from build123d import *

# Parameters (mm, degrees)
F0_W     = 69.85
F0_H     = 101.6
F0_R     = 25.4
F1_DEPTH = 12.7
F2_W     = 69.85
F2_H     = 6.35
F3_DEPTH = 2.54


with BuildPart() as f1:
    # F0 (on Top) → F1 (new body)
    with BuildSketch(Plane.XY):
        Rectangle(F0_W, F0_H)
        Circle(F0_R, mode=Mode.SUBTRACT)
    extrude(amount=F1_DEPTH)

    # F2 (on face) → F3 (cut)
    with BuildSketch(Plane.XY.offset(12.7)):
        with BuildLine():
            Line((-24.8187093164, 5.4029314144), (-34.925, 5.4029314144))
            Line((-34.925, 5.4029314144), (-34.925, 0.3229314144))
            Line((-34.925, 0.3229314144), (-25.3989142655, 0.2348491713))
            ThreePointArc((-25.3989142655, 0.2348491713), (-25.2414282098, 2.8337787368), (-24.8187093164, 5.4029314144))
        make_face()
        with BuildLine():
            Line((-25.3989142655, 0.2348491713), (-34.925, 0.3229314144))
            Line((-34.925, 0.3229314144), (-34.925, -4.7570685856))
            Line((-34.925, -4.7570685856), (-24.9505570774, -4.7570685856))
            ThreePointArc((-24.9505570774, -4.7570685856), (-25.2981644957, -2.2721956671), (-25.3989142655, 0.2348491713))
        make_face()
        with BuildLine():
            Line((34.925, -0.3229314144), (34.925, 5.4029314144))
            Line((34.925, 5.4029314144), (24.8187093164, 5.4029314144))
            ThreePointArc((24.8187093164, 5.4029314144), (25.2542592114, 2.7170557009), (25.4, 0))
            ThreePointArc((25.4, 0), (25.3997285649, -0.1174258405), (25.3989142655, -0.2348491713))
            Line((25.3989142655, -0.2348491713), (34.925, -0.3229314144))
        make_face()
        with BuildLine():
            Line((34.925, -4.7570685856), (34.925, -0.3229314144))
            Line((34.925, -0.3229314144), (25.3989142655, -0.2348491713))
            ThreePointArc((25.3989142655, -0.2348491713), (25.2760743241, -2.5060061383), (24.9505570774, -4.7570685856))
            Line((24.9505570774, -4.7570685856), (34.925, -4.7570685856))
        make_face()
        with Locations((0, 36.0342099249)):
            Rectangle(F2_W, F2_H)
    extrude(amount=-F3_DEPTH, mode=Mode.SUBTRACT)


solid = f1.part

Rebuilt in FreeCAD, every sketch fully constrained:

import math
import FreeCAD as App
import Part
import Sketcher

V = App.Vector
Q = App.Units.Quantity

doc = App.newDocument("Part")
body = doc.addObject("PartDesign::Body", "Body")

sketch1 = body.newObject("Sketcher::SketchObject", "Sketch")
sketch1.AttachmentSupport = (doc.getObject("XY_Plane"), [""])
sketch1.MapMode = "FlatFace"
sketch1.addGeometry([
    Part.LineSegment(V(-35, 51, 0), V(-35, -51, 0)),
    Part.LineSegment(V(-35, -51, 0), V(35, -51, 0)),
    Part.LineSegment(V(35, -51, 0), V(35, 51, 0)),
    Part.LineSegment(V(35, 51, 0), V(-35, 51, 0)),
    Part.Circle(V(0, 0, 0), V(0, 0, 1), 25),
], False)
sketch1.addConstraint([
    Sketcher.Constraint("Coincident", 0, 2, 1, 1),
    Sketcher.Constraint("Coincident", 1, 2, 2, 1),
    Sketcher.Constraint("Coincident", 2, 2, 3, 1),
    Sketcher.Constraint("Coincident", 3, 2, 0, 1),
    Sketcher.Constraint("Vertical", 0),
    Sketcher.Constraint("Horizontal", 1),
    Sketcher.Constraint("Vertical", 2),
    Sketcher.Constraint("Horizontal", 3),
    Sketcher.Constraint("Coincident", 4, 3, -1, 1),
    Sketcher.Constraint("Symmetric", 0, 2, 2, 2, -1, 1),
    Sketcher.Constraint("Diameter", 4, Q("2 in")),
    Sketcher.Constraint("DistanceY", 0, 2, 0, 1, Q("4 in")),
    Sketcher.Constraint("DistanceX", 1, 1, 1, 2, Q("2.75 in")),
])
pad1 = body.newObject("PartDesign::Pad", "Pad")
pad1.Profile = sketch1
pad1.Length = Q("0.5 in")

sketch2 = body.newObject("Sketcher::SketchObject", "Sketch001")
sketch2.AttachmentSupport = (doc.getObject("XY_Plane"), [""])
sketch2.MapMode = "FlatFace"
sketch2.AttachmentOffset = App.Placement(V(0, 0, 0.5 * 25.4), App.Rotation())
sketch2.addGeometry([
    Part.LineSegment(V(-24.82, 5.4, 0), V(-34.92, 5.4, 0)),
    Part.LineSegment(V(-34.92, 5.4, 0), V(-34.92, -4.76, 0)),
    Part.LineSegment(V(-34.92, -4.76, 0), V(-24.95, -4.76, 0)),
    Part.ArcOfCircle(Part.Circle(V(0, 0, 0), V(0, 0, 1), 25.4), math.radians(179.47), math.radians(190.79)),
    Part.ArcOfCircle(Part.Circle(V(0, 0, 0), V(0, 0, 1), 25.4), math.radians(167.72), math.radians(179.47)),
    Part.LineSegment(V(34.92, 5.4, 0), V(24.82, 5.4, 0)),
    Part.ArcOfCircle(Part.Circle(V(0, 0, 0), V(0, 0, 1), 25.4), math.radians(0), math.radians(12.28)),
    Part.ArcOfCircle(Part.Circle(V(0, 0, 0), V(0, 0, 1), 25.4), math.radians(-0.53), math.radians(0)),
    Part.ArcOfCircle(Part.Circle(V(0, 0, 0), V(0, 0, 1), 25.4), math.radians(-10.79), math.radians(-0.53)),
    Part.LineSegment(V(24.95, -4.76, 0), V(34.92, -4.76, 0)),
    Part.LineSegment(V(34.92, -4.76, 0), V(34.92, 5.4, 0)),
    Part.LineSegment(V(-34.92, 39.21, 0), V(-34.92, 32.86, 0)),
    Part.LineSegment(V(-34.92, 32.86, 0), V(34.92, 32.86, 0)),
    Part.LineSegment(V(34.92, 32.86, 0), V(34.92, 39.21, 0)),
    Part.LineSegment(V(34.92, 39.21, 0), V(-34.92, 39.21, 0)),
], False)
sketch2.addConstraint([
    Sketcher.Constraint("Coincident", 0, 2, 1, 1),
    Sketcher.Constraint("Coincident", 1, 2, 2, 1),
    Sketcher.Constraint("Coincident", 2, 2, 3, 2),
    Sketcher.Constraint("Tangent", 3, 1, 4, 2),
    Sketcher.Constraint("Coincident", 4, 1, 0, 1),
    Sketcher.Constraint("Coincident", 5, 2, 6, 2),
    Sketcher.Constraint("Tangent", 6, 1, 7, 2),
    Sketcher.Constraint("Tangent", 7, 1, 8, 2),
    Sketcher.Constraint("Coincident", 8, 1, 9, 1),
    Sketcher.Constraint("Coincident", 9, 2, 10, 1),
    Sketcher.Constraint("Coincident", 10, 2, 5, 1),
    Sketcher.Constraint("Coincident", 11, 2, 12, 1),
    Sketcher.Constraint("Coincident", 12, 2, 13, 1),
    Sketcher.Constraint("Coincident", 13, 2, 14, 1),
    Sketcher.Constraint("Coincident", 14, 2, 11, 1),
    Sketcher.Constraint("Horizontal", 0),
    Sketcher.Constraint("Vertical", 1),
    Sketcher.Constraint("Horizontal", 2),
    Sketcher.Constraint("Horizontal", 5),
    Sketcher.Constraint("Horizontal", 9),
    Sketcher.Constraint("Vertical", 10),
    Sketcher.Constraint("Vertical", 11),
    Sketcher.Constraint("Horizontal", 12),
    Sketcher.Constraint("Vertical", 13),
    Sketcher.Constraint("Horizontal", 14),
    Sketcher.Constraint("Coincident", 3, 3, -1, 1),
    Sketcher.Constraint("Coincident", 6, 3, -1, 1),
    Sketcher.Constraint("Coincident", 8, 3, -1, 1),
    Sketcher.Constraint("Equal", 3, 4),
    Sketcher.Constraint("Equal", 4, 6),
    Sketcher.Constraint("Symmetric", 1, 2, 9, 2, -2),
    Sketcher.Constraint("PointOnObject", 6, 1, -1),
    Sketcher.Constraint("Horizontal", 4, 1, 5, 2),
    Sketcher.Constraint("Vertical", 1, 2, 11, 2),
    Sketcher.Constraint("Vertical", 10, 2, 12, 2),
    Sketcher.Constraint("Radius", 3, Q("1 in")),
    Sketcher.Constraint("DistanceY", 1, 2, 1, 1, Q("0.4 in")),
    Sketcher.Constraint("DistanceX", 12, 1, 12, 2, Q("2.75 in")),
    Sketcher.Constraint("DistanceY", 11, 2, 11, 1, Q("0.25 in")),
    Sketcher.Constraint("DistanceX", 0, 2, 0, 1, 10.106291),
    Sketcher.Constraint("DistanceY", -1, 1, 3, 1, 0.234849),
    Sketcher.Constraint("DistanceY", 7, 1, -1, 1, 0.234849),
    Sketcher.Constraint("DistanceY", -1, 1, 11, 2, 32.85921),
])
pocket1 = body.newObject("PartDesign::Pocket", "Pocket")
pocket1.Profile = sketch2
pocket1.Length = Q("0.1 in")

doc.recompute()
